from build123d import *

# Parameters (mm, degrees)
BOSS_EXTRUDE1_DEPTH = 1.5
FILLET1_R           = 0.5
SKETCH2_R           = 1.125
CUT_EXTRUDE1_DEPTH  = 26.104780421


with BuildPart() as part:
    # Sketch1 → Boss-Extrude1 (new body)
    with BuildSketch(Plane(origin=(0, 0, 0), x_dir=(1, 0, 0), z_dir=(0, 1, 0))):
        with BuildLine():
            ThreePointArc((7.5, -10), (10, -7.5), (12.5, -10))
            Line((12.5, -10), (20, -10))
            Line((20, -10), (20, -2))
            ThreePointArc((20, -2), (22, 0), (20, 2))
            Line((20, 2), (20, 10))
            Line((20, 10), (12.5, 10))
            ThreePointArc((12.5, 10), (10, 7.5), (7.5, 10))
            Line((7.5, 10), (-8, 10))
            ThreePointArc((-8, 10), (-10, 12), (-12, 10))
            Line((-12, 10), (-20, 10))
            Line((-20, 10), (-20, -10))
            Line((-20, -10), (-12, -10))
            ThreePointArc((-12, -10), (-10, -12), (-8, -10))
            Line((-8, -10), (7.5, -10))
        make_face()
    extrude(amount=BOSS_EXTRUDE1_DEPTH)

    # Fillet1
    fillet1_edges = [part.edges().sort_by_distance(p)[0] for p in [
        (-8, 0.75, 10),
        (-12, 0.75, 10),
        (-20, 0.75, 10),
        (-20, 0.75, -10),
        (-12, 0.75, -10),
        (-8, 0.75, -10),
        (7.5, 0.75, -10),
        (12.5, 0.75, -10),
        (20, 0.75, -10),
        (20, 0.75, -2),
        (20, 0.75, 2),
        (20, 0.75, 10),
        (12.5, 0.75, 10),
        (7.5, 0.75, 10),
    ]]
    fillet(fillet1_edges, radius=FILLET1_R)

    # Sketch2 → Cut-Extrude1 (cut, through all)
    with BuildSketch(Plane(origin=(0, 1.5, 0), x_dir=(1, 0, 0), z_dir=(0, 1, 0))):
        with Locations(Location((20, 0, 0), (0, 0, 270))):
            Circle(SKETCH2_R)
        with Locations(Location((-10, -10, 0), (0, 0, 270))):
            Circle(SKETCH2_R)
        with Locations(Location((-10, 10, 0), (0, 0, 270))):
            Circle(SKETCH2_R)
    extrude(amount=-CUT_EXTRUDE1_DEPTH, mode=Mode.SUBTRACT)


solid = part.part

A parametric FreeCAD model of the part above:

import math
import FreeCAD as App
import Part
import Sketcher

V = App.Vector
Q = App.Units.Quantity


def edges_at(feature, points):
    """Names of the edges that pass closest to the given points."""
    edges = feature.Shape.Edges
    near = lambda p: min(range(len(edges)), key=lambda i: edges[i].distToShape(Part.Vertex(*p))[0])
    return sorted({f"Edge{near(p) + 1}" for p in points})

doc = App.newDocument("Part")
body = doc.addObject("PartDesign::Body", "Body")

# Sketch on XZ plane
sketch1 = body.newObject("Sketcher::SketchObject", "Sketch")
sketch1.AttachmentSupport = (doc.getObject("XZ_Plane"), [""])
sketch1.MapMode = "FlatFace"
sketch1.addGeometry([
    Part.ArcOfCircle(Part.Circle(V(10, 10, 0), V(0, 0, 1), 2.5), math.radians(180), math.radians(360)),  # 0
    Part.LineSegment(V(12.5, 10, 0), V(20, 10, 0)),  # 1
    Part.LineSegment(V(20, 10, 0), V(20, 2, 0)),  # 2
    Part.ArcOfCircle(Part.Circle(V(20, 0, 0), V(0, 0, 1), 2), math.radians(-90), math.radians(90)),  # 3
    Part.LineSegment(V(20, -2, 0), V(20, -10, 0)),  # 4
    Part.LineSegment(V(20, -10, 0), V(12.5, -10, 0)),  # 5
    Part.ArcOfCircle(Part.Circle(V(10, -10, 0), V(0, 0, 1), 2.5), math.radians(0), math.radians(180)),  # 6
    Part.LineSegment(V(7.5, -10, 0), V(-8, -10, 0)),  # 7
    Part.ArcOfCircle(Part.Circle(V(-10, -10, 0), V(0, 0, 1), 2), math.radians(180), math.radians(360)),  # 8
    Part.LineSegment(V(-12, -10, 0), V(-20, -10, 0)),  # 9
    Part.LineSegment(V(-20, -10, 0), V(-20, 10, 0)),  # 10
    Part.LineSegment(V(-20, 10, 0), V(-12, 10, 0)),  # 11
    Part.ArcOfCircle(Part.Circle(V(-10, 10, 0), V(0, 0, 1), 2), math.radians(0), math.radians(180)),  # 12
    Part.LineSegment(V(-8, 10, 0), V(7.5, 10, 0)),  # 13
], False)
sketch1.addConstraint([
    Sketcher.Constraint("Coincident", 0, 2, 1, 1),
    Sketcher.Constraint("Coincident", 1, 2, 2, 1),
    Sketcher.Constraint("Coincident", 2, 2, 3, 2),
    Sketcher.Constraint("Coincident", 3, 1, 4, 1),
    Sketcher.Constraint("Coincident", 4, 2, 5, 1),
    Sketcher.Constraint("Coincident", 5, 2, 6, 1),
    Sketcher.Constraint("Coincident", 6, 2, 7, 1),
    Sketcher.Constraint("Coincident", 7, 2, 8, 2),
    Sketcher.Constraint("Coincident", 8, 1, 9, 1),
    Sketcher.Constraint("Coincident", 9, 2, 10, 1),
    Sketcher.Constraint("Coincident", 10, 2, 11, 1),
    Sketcher.Constraint("Coincident", 11, 2, 12, 2),
    Sketcher.Constraint("Coincident", 12, 1, 13, 1),
    Sketcher.Constraint("Coincident", 13, 2, 0, 1),
    Sketcher.Constraint("Horizontal", 1),
    Sketcher.Constraint("Vertical", 2),
    Sketcher.Constraint("Vertical", 4),
    Sketcher.Constraint("Horizontal", 5),
    Sketcher.Constraint("Horizontal", 7),
    Sketcher.Constraint("Horizontal", 9),
    Sketcher.Constraint("Vertical", 10),
    Sketcher.Constraint("Horizontal", 11),
    Sketcher.Constraint("Horizontal", 13),
    Sketcher.Constraint("Equal", 0, 6),
    Sketcher.Constraint("Equal", 3, 8),
    Sketcher.Constraint("Equal", 8, 12),
    Sketcher.Constraint("Symmetric", 0, 3, 8, 3, -1, 1),
    Sketcher.Constraint("Symmetric", 6, 3, 12, 3, -1, 1),
    Sketcher.Constraint("Symmetric", 1, 2, 9, 2, -1, 1),
    Sketcher.Constraint("Symmetric", 4, 2, 10, 2, -1, 1),
    Sketcher.Constraint("Symmetric", 6, 3, 8, 3, -2),
    Sketcher.Constraint("PointOnObject", 3, 3, -1),
    Sketcher.Constraint("Horizontal", 12, 3, 0, 2),
    Sketcher.Constraint("Horizontal", 8, 3, 4, 2),
    Sketcher.Constraint("Horizontal", 5, 2, 6, 2),
    Sketcher.Constraint("Horizontal", 11, 2, 12, 1),
    Sketcher.Constraint("Vertical", 3, 3, 1, 2),
    Sketcher.Constraint("Equal", 11, 2),
    Sketcher.Constraint("Radius", 3, Q("2 mm")),
    Sketcher.Constraint("Radius", 0, Q("2.5 mm")),
    Sketcher.Constraint("DistanceX", 9, 2, 9, 1, Q("8 mm")),
    Sketcher.Constraint("DistanceX", 7, 2, 7, 1, Q("15.5 mm")),
])
pad1 = body.newObject("PartDesign::Pad", "Pad")
pad1.Profile = sketch1
pad1.Length = 1.5
pad1.Reversed = True
doc.recompute()

fillet = body.newObject("PartDesign::Fillet", "Fillet")
fillet.Base = (pad1, edges_at(pad1, [
    (-8, 0.75, 10),
    (-12, 0.75, 10),
    (-20, 0.75, 10),
    (-20, 0.75, -10),
    (-12, 0.75, -10),
    (-8, 0.75, -10),
    (7.5, 0.75, -10),
    (12.5, 0.75, -10),
    (20, 0.75, -10),
    (20, 0.75, -2),
    (20, 0.75, 2),
    (20, 0.75, 10),
    (12.5, 0.75, 10),
    (7.5, 0.75, 10),
]))
fillet.Radius = 0.5

# Sketch on XZ plane
sketch2 = body.newObject("Sketcher::SketchObject", "Sketch001")
sketch2.AttachmentSupport = (doc.getObject("XZ_Plane"), [""])
sketch2.MapMode = "FlatFace"
sketch2.AttachmentOffset = App.Placement(V(0, 0, -1.5), App.Rotation())
sketch2.addGeometry([
    Part.Circle(V(20, 0, 0), V(0, 0, 1), 1.1),
    Part.Circle(V(-10, 10, 0), V(0, 0, 1), 1.1),
    Part.Circle(V(-10, -10, 0), V(0, 0, 1), 1.1),
], False)
sketch2.addConstraint([
    Sketcher.Constraint("Equal", 0, 1),
    Sketcher.Constraint("Equal", 1, 2),
    Sketcher.Constraint("Symmetric", 1, 3, 2, 3, -1),
    Sketcher.Constraint("PointOnObject", 0, 3, -1),
    Sketcher.Constraint("Diameter", 0, Q("2.25 mm")),
    Sketcher.Constraint("DistanceX", -1, 1, 0, 3, Q("20 mm")),
    Sketcher.Constraint("DistanceX", 1, 3, -1, 1, Q("10 mm")),
    Sketcher.Constraint("DistanceY", -1, 1, 1, 3, Q("10 mm")),
])
pocket1 = body.newObject("PartDesign::Pocket", "Pocket")
pocket1.Profile = sketch2
pocket1.Type = "ThroughAll"
pocket1.Reversed = True

doc.recompute()
